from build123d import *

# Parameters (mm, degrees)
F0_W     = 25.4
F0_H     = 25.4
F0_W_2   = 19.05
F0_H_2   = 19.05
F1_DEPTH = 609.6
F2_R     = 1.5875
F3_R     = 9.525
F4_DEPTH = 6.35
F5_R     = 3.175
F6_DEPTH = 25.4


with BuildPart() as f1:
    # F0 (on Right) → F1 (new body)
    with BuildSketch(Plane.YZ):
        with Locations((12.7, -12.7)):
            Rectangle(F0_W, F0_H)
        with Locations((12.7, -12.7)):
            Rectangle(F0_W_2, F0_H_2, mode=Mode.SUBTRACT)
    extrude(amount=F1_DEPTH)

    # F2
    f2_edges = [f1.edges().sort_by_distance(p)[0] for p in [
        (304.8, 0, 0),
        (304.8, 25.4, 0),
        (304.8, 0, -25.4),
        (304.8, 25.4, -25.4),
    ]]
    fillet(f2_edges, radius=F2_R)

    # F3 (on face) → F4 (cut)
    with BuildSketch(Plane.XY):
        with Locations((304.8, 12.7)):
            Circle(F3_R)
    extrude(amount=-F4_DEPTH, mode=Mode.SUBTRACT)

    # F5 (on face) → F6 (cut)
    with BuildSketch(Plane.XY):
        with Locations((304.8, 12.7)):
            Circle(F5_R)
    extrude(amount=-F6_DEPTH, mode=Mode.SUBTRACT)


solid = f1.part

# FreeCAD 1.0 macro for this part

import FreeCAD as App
import Part
import Sketcher
from FreeCAD import Vector
Q = App.Units.Quantity


def edges_at(feature, points):
    """Names of the edges that pass closest to the given points."""
    edges = feature.Shape.Edges
    near = lambda p: min(range(len(edges)), key=lambda i: edges[i].distToShape(Part.Vertex(*p))[0])
    return sorted({f"Edge{near(p) + 1}" for p in points})


def add_polygon(sketch, points):
    """Adds a closed chain of lines whose ends are joined by coincident constraints."""
    first, n = sketch.GeometryCount, len(points)
    for a, b in zip(points, points[1:] + points[:1]):
        sketch.addGeometry(Part.LineSegment(App.Vector(*a, 0), App.Vector(*b, 0)), False)
    for i in range(n):
        sketch.addConstraint(Sketcher.Constraint("Coincident", first + i, 2, first + (i + 1) % n, 1))

doc = App.newDocument("Part")
body = doc.addObject("PartDesign::Body", "Body")

sketch1 = doc.addObject("Sketcher::SketchObject", "Sketch")
body.addObject(sketch1)
sketch1.AttachmentSupport = (doc.YZ_Plane, [""])
sketch1.MapMode = "FlatFace"
add_polygon(sketch1, [(0, 0), (0, -25.4), (25.4, -25.4), (25.4, 0)])
add_polygon(sketch1, [(22.225, -22.225), (3.175, -22.225), (3.175, -3.175), (22.225, -3.175)])
sketch1.addConstraint([
    Sketcher.Constraint("Vertical", 0),
    Sketcher.Constraint("Horizontal", 1),
    Sketcher.Constraint("Vertical", 2),
    Sketcher.Constraint("Horizontal", 3),
    Sketcher.Constraint("Horizontal", 4),
    Sketcher.Constraint("Vertical", 5),
    Sketcher.Constraint("Horizontal", 6),
    Sketcher.Constraint("Vertical", 7),
    Sketcher.Constraint("Coincident", 3, 2, -1, 1),
    Sketcher.Constraint("Equal", 3, 0),
    Sketcher.Constraint("Equal", 6, 5),
    Sketcher.Constraint("DistanceX", 1, 1, 1, 2, Q("1 in")),
    Sketcher.Constraint("DistanceX", 4, 2, 4, 1, Q("0.75 in")),
    Sketcher.Constraint("DistanceX", -1, 1, 4, 2, Q("0.125 in")),
    Sketcher.Constraint("DistanceY", 4, 2, -1, 1, Q("0.875 in")),
])
pad1 = doc.addObject("PartDesign::Pad", "Pad")
body.addObject(pad1)
pad1.Profile = sketch1
pad1.Length = Q("24 in")
doc.recompute()

fillet = doc.addObject("PartDesign::Fillet", "Fillet")
body.addObject(fillet)
fillet.Base = (pad1, edges_at(pad1, [
    (304.8, 0, 0),
    (304.8, 25.4, 0),
    (304.8, 0, -25.4),
    (304.8, 25.4, -25.4),
]))
fillet.Radius = Q("0.0625 in")

sketch2 = doc.addObject("Sketcher::SketchObject", "Sketch001")
body.addObject(sketch2)
sketch2.AttachmentSupport = (doc.XY_Plane, [""])
sketch2.MapMode = "FlatFace"
sketch2.addGeometry(Part.Circle(Vector(304.8, 12.7, 0), Vector(0, 0, 1), 9.525), False)
sketch2.addConstraint([
    Sketcher.Constraint("Diameter", 0, Q("0.75 in")),
    Sketcher.Constraint("DistanceX", -1, 1, 0, 3, Q("12 in")),
    Sketcher.Constraint("DistanceY", -1, 1, 0, 3, Q("0.5 in")),
])
pocket1 = doc.addObject("PartDesign::Pocket", "Pocket")
body.addObject(pocket1)
pocket1.Profile = sketch2
pocket1.Length = Q("0.25 in")

sketch3 = doc.addObject("Sketcher::SketchObject", "Sketch002")
body.addObject(sketch3)
sketch3.AttachmentSupport = (doc.XY_Plane, [""])
sketch3.MapMode = "FlatFace"
sketch3.addGeometry(Part.Circle(Vector(304.8, 12.7, 0), Vector(0, 0, 1), 3.175), False)
sketch3.addConstraint([
    Sketcher.Constraint("Diameter", 0, Q("0.25 in")),
    Sketcher.Constraint("DistanceX", -1, 1, 0, 3, Q("12 in")),
    Sketcher.Constraint("DistanceY", -1, 1, 0, 3, Q("0.5 in")),
])
pocket2 = doc.addObject("PartDesign::Pocket", "Pocket001")
body.addObject(pocket2)
pocket2.Profile = sketch3
pocket2.Length = Q("1 in")

doc.recompute()
